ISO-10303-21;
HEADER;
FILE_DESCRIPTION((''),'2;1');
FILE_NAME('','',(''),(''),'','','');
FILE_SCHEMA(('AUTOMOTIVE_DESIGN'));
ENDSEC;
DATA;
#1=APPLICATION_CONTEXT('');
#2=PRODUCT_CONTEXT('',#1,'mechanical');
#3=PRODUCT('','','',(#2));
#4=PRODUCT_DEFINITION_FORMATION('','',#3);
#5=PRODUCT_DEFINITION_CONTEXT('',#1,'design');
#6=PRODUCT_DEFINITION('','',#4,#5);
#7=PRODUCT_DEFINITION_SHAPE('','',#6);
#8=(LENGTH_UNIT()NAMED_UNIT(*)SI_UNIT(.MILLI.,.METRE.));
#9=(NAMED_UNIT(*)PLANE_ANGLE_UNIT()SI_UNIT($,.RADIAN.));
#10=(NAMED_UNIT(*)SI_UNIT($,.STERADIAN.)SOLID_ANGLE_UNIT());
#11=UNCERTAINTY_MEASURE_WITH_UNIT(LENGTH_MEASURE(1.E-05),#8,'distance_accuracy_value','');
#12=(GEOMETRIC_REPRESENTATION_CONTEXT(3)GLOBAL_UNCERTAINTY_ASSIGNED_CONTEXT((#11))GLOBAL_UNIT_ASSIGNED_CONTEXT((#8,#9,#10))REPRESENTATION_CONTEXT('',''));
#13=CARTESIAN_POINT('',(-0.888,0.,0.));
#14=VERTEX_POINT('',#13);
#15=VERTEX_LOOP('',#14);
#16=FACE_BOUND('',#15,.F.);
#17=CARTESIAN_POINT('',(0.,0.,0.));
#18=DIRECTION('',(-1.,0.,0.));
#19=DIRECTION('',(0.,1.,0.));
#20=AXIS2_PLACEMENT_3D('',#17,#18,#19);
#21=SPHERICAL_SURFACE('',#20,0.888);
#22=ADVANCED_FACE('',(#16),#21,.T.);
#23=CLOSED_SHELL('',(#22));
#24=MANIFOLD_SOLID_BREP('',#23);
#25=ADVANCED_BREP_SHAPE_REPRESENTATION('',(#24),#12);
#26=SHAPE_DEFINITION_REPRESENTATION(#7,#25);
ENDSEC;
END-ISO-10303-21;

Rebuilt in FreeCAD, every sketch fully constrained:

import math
import FreeCAD as App
import Part
import Sketcher
Q = App.Units.Quantity

doc = App.newDocument("Part")
body = doc.addObject("PartDesign::Body", "Body")

# Sketch on XY plane
sketch1 = body.newObject("Sketcher::SketchObject", "Sketch")
sketch1.AttachmentSupport = (doc.getObject("XY_Plane"), [""])
sketch1.MapMode = "FlatFace"
sketch1.addGeometry([
    Part.LineSegment(App.Vector(-0.9, 0, 0), App.Vector(0.9, 0, 0)),
    Part.ArcOfCircle(Part.Circle(App.Vector(0, 0, 0), App.Vector(0, 0, 1), 0.9), math.radians(0), math.radians(180)),
], False)
sketch1.addConstraint([
    Sketcher.Constraint("Coincident", 0, 1, 1, 2),
    Sketcher.Constraint("Coincident", 1, 1, 0, 2),
    Sketcher.Constraint("Horizontal", 0),
    Sketcher.Constraint("Coincident", 1, 3, -1, 1),
    Sketcher.Constraint("PointOnObject", 0, 1, -1),
    Sketcher.Constraint("Radius", 1, Q("0.888 mm")),
])
revolution = body.newObject("PartDesign::Revolution", "Revolution")
revolution.Profile = sketch1
revolution.ReferenceAxis = (sketch1, ["H_Axis"])
revolution.Angle = 360

doc.recompute()
